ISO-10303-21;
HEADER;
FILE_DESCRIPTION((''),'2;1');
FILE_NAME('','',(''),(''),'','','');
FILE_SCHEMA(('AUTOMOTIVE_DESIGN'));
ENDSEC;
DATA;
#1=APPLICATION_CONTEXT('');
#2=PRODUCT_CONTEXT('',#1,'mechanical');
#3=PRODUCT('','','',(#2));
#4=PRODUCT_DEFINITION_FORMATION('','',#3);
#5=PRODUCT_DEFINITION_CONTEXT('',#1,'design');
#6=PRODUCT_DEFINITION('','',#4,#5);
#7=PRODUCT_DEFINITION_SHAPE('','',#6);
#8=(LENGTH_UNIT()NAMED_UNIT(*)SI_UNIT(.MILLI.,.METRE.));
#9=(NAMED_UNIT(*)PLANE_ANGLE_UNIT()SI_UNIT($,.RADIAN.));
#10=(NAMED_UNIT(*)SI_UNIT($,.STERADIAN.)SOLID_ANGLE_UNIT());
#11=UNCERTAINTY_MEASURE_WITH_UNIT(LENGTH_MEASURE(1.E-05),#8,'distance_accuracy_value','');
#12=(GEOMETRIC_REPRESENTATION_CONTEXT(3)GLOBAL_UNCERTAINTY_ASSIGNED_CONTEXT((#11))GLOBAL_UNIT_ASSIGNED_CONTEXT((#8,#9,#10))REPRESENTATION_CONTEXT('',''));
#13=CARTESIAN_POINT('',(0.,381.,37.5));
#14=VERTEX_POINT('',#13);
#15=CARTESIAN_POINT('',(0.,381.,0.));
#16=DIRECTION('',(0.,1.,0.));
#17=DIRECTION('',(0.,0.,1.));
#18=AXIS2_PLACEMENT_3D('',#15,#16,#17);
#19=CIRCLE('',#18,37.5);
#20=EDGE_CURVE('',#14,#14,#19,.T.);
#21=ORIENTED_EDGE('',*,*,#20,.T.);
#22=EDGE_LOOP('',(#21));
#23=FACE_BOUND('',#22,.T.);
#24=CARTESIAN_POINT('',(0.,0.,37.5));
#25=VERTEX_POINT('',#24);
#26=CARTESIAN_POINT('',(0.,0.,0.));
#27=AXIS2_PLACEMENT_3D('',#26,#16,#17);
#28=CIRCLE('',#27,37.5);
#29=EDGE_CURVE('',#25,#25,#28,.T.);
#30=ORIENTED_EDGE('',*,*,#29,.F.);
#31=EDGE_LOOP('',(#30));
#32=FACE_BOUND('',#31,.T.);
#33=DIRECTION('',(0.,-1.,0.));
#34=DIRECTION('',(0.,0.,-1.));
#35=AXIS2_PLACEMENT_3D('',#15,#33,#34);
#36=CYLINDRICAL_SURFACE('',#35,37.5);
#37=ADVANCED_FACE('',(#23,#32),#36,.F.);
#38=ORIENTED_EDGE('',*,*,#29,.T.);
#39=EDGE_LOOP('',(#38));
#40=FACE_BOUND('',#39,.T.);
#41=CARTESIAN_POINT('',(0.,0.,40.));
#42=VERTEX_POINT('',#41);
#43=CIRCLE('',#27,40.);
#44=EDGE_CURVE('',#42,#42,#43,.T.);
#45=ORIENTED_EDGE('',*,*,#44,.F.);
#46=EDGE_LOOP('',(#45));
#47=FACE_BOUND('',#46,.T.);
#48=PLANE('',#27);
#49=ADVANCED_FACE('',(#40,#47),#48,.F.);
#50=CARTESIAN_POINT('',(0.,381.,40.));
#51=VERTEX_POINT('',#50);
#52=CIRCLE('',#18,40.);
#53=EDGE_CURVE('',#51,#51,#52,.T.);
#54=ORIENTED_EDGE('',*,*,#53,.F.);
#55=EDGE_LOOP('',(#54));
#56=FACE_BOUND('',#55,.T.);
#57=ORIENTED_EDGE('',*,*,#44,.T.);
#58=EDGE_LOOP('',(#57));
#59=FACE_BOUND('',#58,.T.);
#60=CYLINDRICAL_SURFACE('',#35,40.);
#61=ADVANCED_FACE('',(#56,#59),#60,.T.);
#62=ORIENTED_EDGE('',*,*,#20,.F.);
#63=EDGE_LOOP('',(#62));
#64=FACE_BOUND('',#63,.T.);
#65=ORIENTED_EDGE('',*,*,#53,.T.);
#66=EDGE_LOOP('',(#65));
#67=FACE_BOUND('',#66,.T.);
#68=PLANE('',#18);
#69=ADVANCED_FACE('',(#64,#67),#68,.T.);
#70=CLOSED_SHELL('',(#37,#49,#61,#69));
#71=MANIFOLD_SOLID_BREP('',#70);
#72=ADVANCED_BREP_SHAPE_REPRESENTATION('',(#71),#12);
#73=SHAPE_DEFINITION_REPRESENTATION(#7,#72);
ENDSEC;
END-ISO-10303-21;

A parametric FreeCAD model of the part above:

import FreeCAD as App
import Part
import Sketcher

V = App.Vector
Q = App.Units.Quantity

doc = App.newDocument("Part")
body = doc.addObject("PartDesign::Body", "Body")

sketch1 = body.newObject("Sketcher::SketchObject", "Sketch")
sketch1.AttachmentSupport = (doc.getObject("XZ_Plane"), [""])
sketch1.MapMode = "FlatFace"
sketch1.addGeometry(Part.Circle(V(0, 0, 0), V(0, 0, 1), 40), False)
sketch1.addGeometry(Part.Circle(V(0, 0, 0), V(0, 0, 1), 38), False)
sketch1.addConstraint(Sketcher.Constraint("Coincident", 0, 3, -1, 1))
sketch1.addConstraint(Sketcher.Constraint("Coincident", 1, 3, -1, 1))
sketch1.addConstraint(Sketcher.Constraint("Diameter", 0, Q("80 mm")))
sketch1.addConstraint(Sketcher.Constraint("Diameter", 1, Q("75 mm")))
pad1 = body.newObject("PartDesign::Pad", "Pad")
pad1.Profile = sketch1
pad1.Length = 381
pad1.Reversed = True

doc.recompute()
